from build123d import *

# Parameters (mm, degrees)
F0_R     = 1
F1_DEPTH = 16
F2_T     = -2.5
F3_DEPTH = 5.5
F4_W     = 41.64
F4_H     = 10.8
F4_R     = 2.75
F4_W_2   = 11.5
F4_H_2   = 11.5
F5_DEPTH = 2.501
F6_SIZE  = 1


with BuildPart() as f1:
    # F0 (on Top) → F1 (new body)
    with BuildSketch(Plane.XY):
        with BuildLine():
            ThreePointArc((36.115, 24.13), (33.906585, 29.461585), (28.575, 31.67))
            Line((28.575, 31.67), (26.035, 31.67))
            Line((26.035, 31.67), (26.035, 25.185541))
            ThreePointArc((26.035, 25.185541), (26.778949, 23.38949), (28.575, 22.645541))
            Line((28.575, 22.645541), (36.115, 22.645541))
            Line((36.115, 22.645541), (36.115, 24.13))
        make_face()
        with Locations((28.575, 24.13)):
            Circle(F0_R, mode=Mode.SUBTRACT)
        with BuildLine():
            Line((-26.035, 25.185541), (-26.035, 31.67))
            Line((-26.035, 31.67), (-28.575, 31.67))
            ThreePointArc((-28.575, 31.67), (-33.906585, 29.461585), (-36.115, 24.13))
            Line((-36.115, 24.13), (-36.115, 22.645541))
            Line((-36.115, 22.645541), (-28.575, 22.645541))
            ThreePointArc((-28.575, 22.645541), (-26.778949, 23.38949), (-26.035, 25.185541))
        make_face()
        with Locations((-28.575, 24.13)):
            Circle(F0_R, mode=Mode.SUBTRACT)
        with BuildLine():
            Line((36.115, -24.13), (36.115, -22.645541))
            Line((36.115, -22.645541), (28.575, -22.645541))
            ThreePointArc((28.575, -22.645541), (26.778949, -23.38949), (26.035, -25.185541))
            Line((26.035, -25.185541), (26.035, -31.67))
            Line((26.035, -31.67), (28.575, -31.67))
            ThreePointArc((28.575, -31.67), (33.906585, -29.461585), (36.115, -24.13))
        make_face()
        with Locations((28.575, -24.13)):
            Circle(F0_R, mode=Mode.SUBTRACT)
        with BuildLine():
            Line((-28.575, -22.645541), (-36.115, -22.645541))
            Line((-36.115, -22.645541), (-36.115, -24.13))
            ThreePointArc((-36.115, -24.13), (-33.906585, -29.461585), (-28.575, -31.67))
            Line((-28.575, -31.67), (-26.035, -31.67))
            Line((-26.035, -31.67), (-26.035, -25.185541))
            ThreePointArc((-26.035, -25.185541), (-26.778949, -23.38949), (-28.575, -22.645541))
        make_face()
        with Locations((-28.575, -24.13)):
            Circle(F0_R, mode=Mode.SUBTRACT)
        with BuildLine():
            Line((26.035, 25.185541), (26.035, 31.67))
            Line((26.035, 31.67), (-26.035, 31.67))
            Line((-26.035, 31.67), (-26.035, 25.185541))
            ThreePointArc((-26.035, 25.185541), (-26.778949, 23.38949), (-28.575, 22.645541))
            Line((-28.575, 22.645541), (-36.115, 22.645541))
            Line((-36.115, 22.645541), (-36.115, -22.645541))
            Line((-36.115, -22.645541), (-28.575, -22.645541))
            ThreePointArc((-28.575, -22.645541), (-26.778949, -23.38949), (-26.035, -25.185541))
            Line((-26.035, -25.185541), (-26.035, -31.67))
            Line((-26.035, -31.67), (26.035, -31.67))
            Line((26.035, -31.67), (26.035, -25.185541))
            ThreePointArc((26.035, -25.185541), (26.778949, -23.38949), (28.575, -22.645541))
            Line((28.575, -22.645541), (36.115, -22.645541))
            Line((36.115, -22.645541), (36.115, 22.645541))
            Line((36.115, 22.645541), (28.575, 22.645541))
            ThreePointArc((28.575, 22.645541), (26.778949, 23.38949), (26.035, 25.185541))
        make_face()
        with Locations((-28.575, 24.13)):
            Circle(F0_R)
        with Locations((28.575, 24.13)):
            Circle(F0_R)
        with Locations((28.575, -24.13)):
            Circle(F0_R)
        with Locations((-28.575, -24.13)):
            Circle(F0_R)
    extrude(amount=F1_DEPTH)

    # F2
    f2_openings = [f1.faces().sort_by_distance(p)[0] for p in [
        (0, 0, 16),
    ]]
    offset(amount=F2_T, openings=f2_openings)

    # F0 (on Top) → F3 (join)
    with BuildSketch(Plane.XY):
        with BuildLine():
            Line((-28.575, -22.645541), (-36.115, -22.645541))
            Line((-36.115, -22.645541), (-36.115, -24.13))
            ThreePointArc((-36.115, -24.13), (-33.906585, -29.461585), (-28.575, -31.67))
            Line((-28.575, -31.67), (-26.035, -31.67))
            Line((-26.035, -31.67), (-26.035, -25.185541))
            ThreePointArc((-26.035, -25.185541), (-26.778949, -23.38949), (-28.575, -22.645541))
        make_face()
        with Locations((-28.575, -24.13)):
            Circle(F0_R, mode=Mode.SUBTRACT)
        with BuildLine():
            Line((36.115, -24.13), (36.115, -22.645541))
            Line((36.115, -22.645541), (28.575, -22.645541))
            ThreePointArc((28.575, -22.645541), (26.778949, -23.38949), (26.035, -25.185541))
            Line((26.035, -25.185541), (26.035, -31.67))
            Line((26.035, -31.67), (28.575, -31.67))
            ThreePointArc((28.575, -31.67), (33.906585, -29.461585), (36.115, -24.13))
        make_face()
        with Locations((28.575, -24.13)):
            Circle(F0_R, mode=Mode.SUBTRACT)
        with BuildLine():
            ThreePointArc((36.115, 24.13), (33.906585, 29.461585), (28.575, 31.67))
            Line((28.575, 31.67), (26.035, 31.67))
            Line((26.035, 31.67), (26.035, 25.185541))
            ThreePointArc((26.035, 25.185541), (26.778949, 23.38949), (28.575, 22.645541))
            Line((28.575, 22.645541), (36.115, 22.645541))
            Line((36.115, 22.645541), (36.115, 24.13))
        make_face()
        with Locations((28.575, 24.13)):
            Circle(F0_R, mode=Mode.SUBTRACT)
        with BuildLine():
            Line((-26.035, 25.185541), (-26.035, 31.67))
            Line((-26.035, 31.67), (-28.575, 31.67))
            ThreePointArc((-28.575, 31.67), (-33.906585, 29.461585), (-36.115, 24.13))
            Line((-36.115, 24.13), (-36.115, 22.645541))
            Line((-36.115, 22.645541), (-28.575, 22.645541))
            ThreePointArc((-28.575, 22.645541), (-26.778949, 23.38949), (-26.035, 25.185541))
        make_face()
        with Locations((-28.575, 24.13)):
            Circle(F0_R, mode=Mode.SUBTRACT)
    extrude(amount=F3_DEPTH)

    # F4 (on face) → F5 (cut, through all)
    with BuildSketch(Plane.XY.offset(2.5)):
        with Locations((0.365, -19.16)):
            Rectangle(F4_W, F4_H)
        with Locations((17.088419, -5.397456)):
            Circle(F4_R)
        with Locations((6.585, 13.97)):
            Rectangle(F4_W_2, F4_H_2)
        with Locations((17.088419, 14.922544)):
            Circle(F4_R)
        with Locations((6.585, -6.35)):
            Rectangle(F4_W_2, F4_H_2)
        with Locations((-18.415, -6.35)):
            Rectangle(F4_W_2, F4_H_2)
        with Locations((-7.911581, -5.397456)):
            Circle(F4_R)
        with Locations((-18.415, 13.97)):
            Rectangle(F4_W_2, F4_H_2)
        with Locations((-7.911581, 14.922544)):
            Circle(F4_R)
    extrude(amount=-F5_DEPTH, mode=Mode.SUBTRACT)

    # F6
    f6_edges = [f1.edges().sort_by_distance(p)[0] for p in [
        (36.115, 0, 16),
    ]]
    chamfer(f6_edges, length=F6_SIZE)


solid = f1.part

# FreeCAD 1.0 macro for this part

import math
import FreeCAD as App
import Part
import Sketcher


def edges_at(feature, points):
    """Names of the edges that pass closest to the given points."""
    edges = feature.Shape.Edges
    near = lambda p: min(range(len(edges)), key=lambda i: edges[i].distToShape(Part.Vertex(*p))[0])
    return sorted({f"Edge{near(p) + 1}" for p in points})


def faces_at(feature, points):
    """Names of the faces that lie closest to the given points."""
    faces = feature.Shape.Faces
    near = lambda p: min(range(len(faces)), key=lambda i: faces[i].distToShape(Part.Vertex(*p))[0])
    return sorted({f"Face{near(p) + 1}" for p in points})

doc = App.newDocument("Part")
body = doc.addObject("PartDesign::Body", "Body")

# Sketch on XY plane
sketch1 = doc.addObject("Sketcher::SketchObject", "Sketch")
body.addObject(sketch1)
sketch1.AttachmentSupport = (doc.XY_Plane, [""])
sketch1.MapMode = "FlatFace"
sketch1.addGeometry(Part.ArcOfCircle(Part.Circle(App.Vector(29, 24, 0), App.Vector(0, 0, 1), 8), math.radians(0), math.radians(90)), False)
sketch1.addGeometry(Part.LineSegment(App.Vector(29, 32, 0), App.Vector(-29, 32, 0)), False)
sketch1.addGeometry(Part.ArcOfCircle(Part.Circle(App.Vector(-29, 24, 0), App.Vector(0, 0, 1), 8), math.radians(90), math.radians(180)), False)
sketch1.addGeometry(Part.LineSegment(App.Vector(-36, 24, 0), App.Vector(-36, -24, 0)), False)
sketch1.addGeometry(Part.ArcOfCircle(Part.Circle(App.Vector(-29, -24, 0), App.Vector(0, 0, 1), 8), math.radians(-180), math.radians(-90)), False)
sketch1.addGeometry(Part.LineSegment(App.Vector(-29, -32, 0), App.Vector(29, -32, 0)), False)
sketch1.addGeometry(Part.ArcOfCircle(Part.Circle(App.Vector(29, -24, 0), App.Vector(0, 0, 1), 8), math.radians(-90), math.radians(0)), False)
sketch1.addGeometry(Part.LineSegment(App.Vector(36, -24, 0), App.Vector(36, 24, 0)), False)
sketch1.addConstraint(Sketcher.Constraint("Tangent", 0, 2, 1, 1))
sketch1.addConstraint(Sketcher.Constraint("Tangent", 1, 2, 2, 1))
sketch1.addConstraint(Sketcher.Constraint("Tangent", 2, 2, 3, 1))
sketch1.addConstraint(Sketcher.Constraint("Tangent", 3, 2, 4, 1))
sketch1.addConstraint(Sketcher.Constraint("Tangent", 4, 2, 5, 1))
sketch1.addConstraint(Sketcher.Constraint("Tangent", 5, 2, 6, 1))
sketch1.addConstraint(Sketcher.Constraint("Tangent", 6, 2, 7, 1))
sketch1.addConstraint(Sketcher.Constraint("Tangent", 7, 2, 0, 1))
sketch1.addConstraint(Sketcher.Constraint("Horizontal", 1))
sketch1.addConstraint(Sketcher.Constraint("Vertical", 3))
sketch1.addConstraint(Sketcher.Constraint("Horizontal", 5))
sketch1.addConstraint(Sketcher.Constraint("Vertical", 7))
sketch1.addConstraint(Sketcher.Constraint("Equal", 0, 2))
sketch1.addConstraint(Sketcher.Constraint("Equal", 2, 4))
sketch1.addConstraint(Sketcher.Constraint("Equal", 4, 6))
sketch1.addConstraint(Sketcher.Constraint("Symmetric", 0, 3, 4, 3, -1, 1))
sketch1.addConstraint(Sketcher.Constraint("Radius", 0, 7.54))
sketch1.addConstraint(Sketcher.Constraint("DistanceX", 1, 2, 1, 1, 57.15))
sketch1.addConstraint(Sketcher.Constraint("DistanceY", 3, 2, 3, 1, 48.26))
pad1 = doc.addObject("PartDesign::Pad", "Pad")
body.addObject(pad1)
pad1.Profile = sketch1
pad1.Length = 16
doc.recompute()

thickness = doc.addObject("PartDesign::Thickness", "Thickness")
body.addObject(thickness)
thickness.Base = (pad1, faces_at(pad1, [(0, 0, 16)]))
thickness.Value = 2.5
thickness.Reversed = True
thickness.Join = "Arc"

# Sketch on XY plane
sketch2 = doc.addObject("Sketcher::SketchObject", "Sketch001")
body.addObject(sketch2)
sketch2.AttachmentSupport = (doc.XY_Plane, [""])
sketch2.MapMode = "FlatFace"
sketch2.addGeometry(Part.LineSegment(App.Vector(-28.6, -22.6, 0), App.Vector(-36.1, -22.6, 0)), False)
sketch2.addGeometry(Part.LineSegment(App.Vector(-36.1, -22.6, 0), App.Vector(-36.1, -24.1, 0)), False)
sketch2.addGeometry(Part.ArcOfCircle(Part.Circle(App.Vector(-28.6, -24.1, 0), App.Vector(0, 0, 1), 7.5), math.radians(-180), math.radians(-90)), False)
sketch2.addGeometry(Part.LineSegment(App.Vector(-28.6, -31.7, 0), App.Vector(-26, -31.7, 0)), False)
sketch2.addGeometry(Part.LineSegment(App.Vector(-26, -31.7, 0), App.Vector(-26, -25.2, 0)), False)
sketch2.addGeometry(Part.ArcOfCircle(Part.Circle(App.Vector(-28.6, -25.2, 0), App.Vector(0, 0, 1), 2.5), math.radians(0), math.radians(90)), False)
sketch2.addGeometry(Part.Circle(App.Vector(-28.6, -24.1, 0), App.Vector(0, 0, 1), 1), False)
sketch2.addGeometry(Part.LineSegment(App.Vector(36.1, -24.1, 0), App.Vector(36.1, -22.6, 0)), False)
sketch2.addGeometry(Part.LineSegment(App.Vector(36.1, -22.6, 0), App.Vector(28.6, -22.6, 0)), False)
sketch2.addGeometry(Part.ArcOfCircle(Part.Circle(App.Vector(28.6, -25.2, 0), App.Vector(0, 0, 1), 2.5), math.radians(90), math.radians(180)), False)
sketch2.addGeometry(Part.LineSegment(App.Vector(26, -25.2, 0), App.Vector(26, -31.7, 0)), False)
sketch2.addGeometry(Part.LineSegment(App.Vector(26, -31.7, 0), App.Vector(28.6, -31.7, 0)), False)
sketch2.addGeometry(Part.ArcOfCircle(Part.Circle(App.Vector(28.6, -24.1, 0), App.Vector(0, 0, 1), 7.5), math.radians(-90), math.radians(0)), False)
sketch2.addGeometry(Part.Circle(App.Vector(28.6, -24.1, 0), App.Vector(0, 0, 1), 1), False)
sketch2.addGeometry(Part.ArcOfCircle(Part.Circle(App.Vector(28.6, 24.1, 0), App.Vector(0, 0, 1), 7.5), math.radians(0), math.radians(90)), False)
sketch2.addGeometry(Part.LineSegment(App.Vector(28.6, 31.7, 0), App.Vector(26, 31.7, 0)), False)
sketch2.addGeometry(Part.LineSegment(App.Vector(26, 31.7, 0), App.Vector(26, 25.2, 0)), False)
sketch2.addGeometry(Part.ArcOfCircle(Part.Circle(App.Vector(28.6, 25.2, 0), App.Vector(0, 0, 1), 2.5), math.radians(-180), math.radians(-90)), False)
sketch2.addGeometry(Part.LineSegment(App.Vector(28.6, 22.6, 0), App.Vector(36.1, 22.6, 0)), False)
sketch2.addGeometry(Part.LineSegment(App.Vector(36.1, 22.6, 0), App.Vector(36.1, 24.1, 0)), False)
sketch2.addGeometry(Part.Circle(App.Vector(28.6, 24.1, 0), App.Vector(0, 0, 1), 1), False)
sketch2.addGeometry(Part.LineSegment(App.Vector(-26, 25.2, 0), App.Vector(-26, 31.7, 0)), False)
sketch2.addGeometry(Part.LineSegment(App.Vector(-26, 31.7, 0), App.Vector(-28.6, 31.7, 0)), False)
sketch2.addGeometry(Part.ArcOfCircle(Part.Circle(App.Vector(-28.6, 24.1, 0), App.Vector(0, 0, 1), 7.5), math.radians(90), math.radians(180)), False)
sketch2.addGeometry(Part.LineSegment(App.Vector(-36.1, 24.1, 0), App.Vector(-36.1, 22.6, 0)), False)
sketch2.addGeometry(Part.LineSegment(App.Vector(-36.1, 22.6, 0), App.Vector(-28.6, 22.6, 0)), False)
sketch2.addGeometry(Part.ArcOfCircle(Part.Circle(App.Vector(-28.6, 25.2, 0), App.Vector(0, 0, 1), 2.5), math.radians(-90), math.radians(0)), False)
sketch2.addGeometry(Part.Circle(App.Vector(-28.6, 24.1, 0), App.Vector(0, 0, 1), 1), False)
sketch2.addConstraint(Sketcher.Constraint("Coincident", 0, 2, 1, 1))
sketch2.addConstraint(Sketcher.Constraint("Tangent", 1, 2, 2, 1))
sketch2.addConstraint(Sketcher.Constraint("Tangent", 2, 2, 3, 1))
sketch2.addConstraint(Sketcher.Constraint("Coincident", 3, 2, 4, 1))
sketch2.addConstraint(Sketcher.Constraint("Tangent", 4, 2, 5, 1))
sketch2.addConstraint(Sketcher.Constraint("Tangent", 5, 2, 0, 1))
sketch2.addConstraint(Sketcher.Constraint("Coincident", 7, 2, 8, 1))
sketch2.addConstraint(Sketcher.Constraint("Tangent", 8, 2, 9, 1))
sketch2.addConstraint(Sketcher.Constraint("Tangent", 9, 2, 10, 1))
sketch2.addConstraint(Sketcher.Constraint("Coincident", 10, 2, 11, 1))
sketch2.addConstraint(Sketcher.Constraint("Tangent", 11, 2, 12, 1))
sketch2.addConstraint(Sketcher.Constraint("Tangent", 12, 2, 7, 1))
sketch2.addConstraint(Sketcher.Constraint("Tangent", 14, 2, 15, 1))
sketch2.addConstraint(Sketcher.Constraint("Coincident", 15, 2, 16, 1))
sketch2.addConstraint(Sketcher.Constraint("Tangent", 16, 2, 17, 1))
sketch2.addConstraint(Sketcher.Constraint("Tangent", 17, 2, 18, 1))
sketch2.addConstraint(Sketcher.Constraint("Coincident", 18, 2, 19, 1))
sketch2.addConstraint(Sketcher.Constraint("Tangent", 19, 2, 14, 1))
sketch2.addConstraint(Sketcher.Constraint("Coincident", 21, 2, 22, 1))
sketch2.addConstraint(Sketcher.Constraint("Tangent", 22, 2, 23, 1))
sketch2.addConstraint(Sketcher.Constraint("Tangent", 23, 2, 24, 1))
sketch2.addConstraint(Sketcher.Constraint("Coincident", 24, 2, 25, 1))
sketch2.addConstraint(Sketcher.Constraint("Tangent", 25, 2, 26, 1))
sketch2.addConstraint(Sketcher.Constraint("Tangent", 26, 2, 21, 1))
sketch2.addConstraint(Sketcher.Constraint("Horizontal", 0))
sketch2.addConstraint(Sketcher.Constraint("Vertical", 1))
sketch2.addConstraint(Sketcher.Constraint("Horizontal", 3))
sketch2.addConstraint(Sketcher.Constraint("Vertical", 4))
sketch2.addConstraint(Sketcher.Constraint("Vertical", 7))
sketch2.addConstraint(Sketcher.Constraint("Horizontal", 8))
sketch2.addConstraint(Sketcher.Constraint("Vertical", 10))
sketch2.addConstraint(Sketcher.Constraint("Horizontal", 11))
sketch2.addConstraint(Sketcher.Constraint("Horizontal", 15))
sketch2.addConstraint(Sketcher.Constraint("Vertical", 16))
sketch2.addConstraint(Sketcher.Constraint("Horizontal", 18))
sketch2.addConstraint(Sketcher.Constraint("Vertical", 19))
sketch2.addConstraint(Sketcher.Constraint("Vertical", 21))
sketch2.addConstraint(Sketcher.Constraint("Horizontal", 22))
sketch2.addConstraint(Sketcher.Constraint("Vertical", 24))
sketch2.addConstraint(Sketcher.Constraint("Horizontal", 25))
sketch2.addConstraint(Sketcher.Constraint("Coincident", 6, 3, 2, 3))
sketch2.addConstraint(Sketcher.Constraint("Coincident", 13, 3, 12, 3))
sketch2.addConstraint(Sketcher.Constraint("Coincident", 20, 3, 14, 3))
sketch2.addConstraint(Sketcher.Constraint("Coincident", 27, 3, 23, 3))
sketch2.addConstraint(Sketcher.Constraint("Equal", 5, 9))
sketch2.addConstraint(Sketcher.Constraint("Equal", 2, 12))
sketch2.addConstraint(Sketcher.Constraint("Equal", 6, 13))
sketch2.addConstraint(Sketcher.Constraint("Equal", 12, 14))
sketch2.addConstraint(Sketcher.Constraint("Equal", 9, 17))
sketch2.addConstraint(Sketcher.Constraint("Equal", 13, 20))
sketch2.addConstraint(Sketcher.Constraint("Equal", 14, 23))
sketch2.addConstraint(Sketcher.Constraint("Equal", 17, 26))
sketch2.addConstraint(Sketcher.Constraint("Equal", 20, 27))
sketch2.addConstraint(Sketcher.Constraint("Symmetric", 2, 3, 14, 3, -1, 1))
sketch2.addConstraint(Sketcher.Constraint("Symmetric", 5, 3, 17, 3, -1, 1))
sketch2.addConstraint(Sketcher.Constraint("Symmetric", 12, 3, 23, 3, -1, 1))
sketch2.addConstraint(Sketcher.Constraint("Symmetric", 9, 3, 26, 3, -1, 1))
sketch2.addConstraint(Sketcher.Constraint("Symmetric", 5, 3, 9, 3, -2))
sketch2.addConstraint(Sketcher.Constraint("Symmetric", 2, 3, 12, 3, -2))
sketch2.addConstraint(Sketcher.Constraint("Vertical", 2, 3, 5, 3))
sketch2.addConstraint(Sketcher.Constraint("Diameter", 6, 2.0))
sketch2.addConstraint(Sketcher.Constraint("Radius", 2, 7.54))
sketch2.addConstraint(Sketcher.Constraint("Radius", 5, 2.540001))
sketch2.addConstraint(Sketcher.Constraint("DistanceY", 2, 3, -1, 1, 24.13))
sketch2.addConstraint(Sketcher.Constraint("DistanceX", 5, 3, 9, 3, 57.150002))
sketch2.addConstraint(Sketcher.Constraint("DistanceY", 1, 2, 1, 1, 1.484459))
pad2 = doc.addObject("PartDesign::Pad", "Pad001")
body.addObject(pad2)
pad2.Profile = sketch2
pad2.Length = 5.5

# Sketch on XY plane
sketch3 = doc.addObject("Sketcher::SketchObject", "Sketch002")
body.addObject(sketch3)
sketch3.AttachmentSupport = (doc.XY_Plane, [""])
sketch3.MapMode = "FlatFace"
sketch3.AttachmentOffset = App.Placement(App.Vector(0, 0, 2.5), App.Rotation())
sketch3.addGeometry(Part.LineSegment(App.Vector(-20.5, -13.8, 0), App.Vector(-20.5, -24.6, 0)), False)
sketch3.addGeometry(Part.LineSegment(App.Vector(-20.5, -24.6, 0), App.Vector(21.2, -24.6, 0)), False)
sketch3.addGeometry(Part.LineSegment(App.Vector(21.2, -24.6, 0), App.Vector(21.2, -13.8, 0)), False)
sketch3.addGeometry(Part.LineSegment(App.Vector(21.2, -13.8, 0), App.Vector(-20.5, -13.8, 0)), False)
sketch3.addGeometry(Part.Circle(App.Vector(17.1, -5.4, 0), App.Vector(0, 0, 1), 2.8), False)
sketch3.addGeometry(Part.LineSegment(App.Vector(0.8, 19.7, 0), App.Vector(0.8, 8.2, 0)), False)
sketch3.addGeometry(Part.LineSegment(App.Vector(0.8, 8.2, 0), App.Vector(12.3, 8.2, 0)), False)
sketch3.addGeometry(Part.LineSegment(App.Vector(12.3, 8.2, 0), App.Vector(12.3, 19.7, 0)), False)
sketch3.addGeometry(Part.LineSegment(App.Vector(12.3, 19.7, 0), App.Vector(0.8, 19.7, 0)), False)
sketch3.addGeometry(Part.Circle(App.Vector(17.1, 14.9, 0), App.Vector(0, 0, 1), 2.8), False)
sketch3.addGeometry(Part.LineSegment(App.Vector(0.8, -0.6, 0), App.Vector(0.8, -12.1, 0)), False)
sketch3.addGeometry(Part.LineSegment(App.Vector(0.8, -12.1, 0), App.Vector(12.3, -12.1, 0)), False)
sketch3.addGeometry(Part.LineSegment(App.Vector(12.3, -12.1, 0), App.Vector(12.3, -0.6, 0)), False)
sketch3.addGeometry(Part.LineSegment(App.Vector(12.3, -0.6, 0), App.Vector(0.8, -0.6, 0)), False)
sketch3.addGeometry(Part.LineSegment(App.Vector(-24.2, -0.6, 0), App.Vector(-24.2, -12.1, 0)), False)
sketch3.addGeometry(Part.LineSegment(App.Vector(-24.2, -12.1, 0), App.Vector(-12.7, -12.1, 0)), False)
sketch3.addGeometry(Part.LineSegment(App.Vector(-12.7, -12.1, 0), App.Vector(-12.7, -0.6, 0)), False)
sketch3.addGeometry(Part.LineSegment(App.Vector(-12.7, -0.6, 0), App.Vector(-24.2, -0.6, 0)), False)
sketch3.addGeometry(Part.Circle(App.Vector(-7.9, -5.4, 0), App.Vector(0, 0, 1), 2.8), False)
sketch3.addGeometry(Part.LineSegment(App.Vector(-24.2, 19.7, 0), App.Vector(-24.2, 8.2, 0)), False)
sketch3.addGeometry(Part.LineSegment(App.Vector(-24.2, 8.2, 0), App.Vector(-12.7, 8.2, 0)), False)
sketch3.addGeometry(Part.LineSegment(App.Vector(-12.7, 8.2, 0), App.Vector(-12.7, 19.7, 0)), False)
sketch3.addGeometry(Part.LineSegment(App.Vector(-12.7, 19.7, 0), App.Vector(-24.2, 19.7, 0)), False)
sketch3.addGeometry(Part.Circle(App.Vector(-7.9, 14.9, 0), App.Vector(0, 0, 1), 2.8), False)
sketch3.addConstraint(Sketcher.Constraint("Coincident", 0, 2, 1, 1))
sketch3.addConstraint(Sketcher.Constraint("Coincident", 1, 2, 2, 1))
sketch3.addConstraint(Sketcher.Constraint("Coincident", 2, 2, 3, 1))
sketch3.addConstraint(Sketcher.Constraint("Coincident", 3, 2, 0, 1))
sketch3.addConstraint(Sketcher.Constraint("Coincident", 5, 2, 6, 1))
sketch3.addConstraint(Sketcher.Constraint("Coincident", 6, 2, 7, 1))
sketch3.addConstraint(Sketcher.Constraint("Coincident", 7, 2, 8, 1))
sketch3.addConstraint(Sketcher.Constraint("Coincident", 8, 2, 5, 1))
sketch3.addConstraint(Sketcher.Constraint("Coincident", 10, 2, 11, 1))
sketch3.addConstraint(Sketcher.Constraint("Coincident", 11, 2, 12, 1))
sketch3.addConstraint(Sketcher.Constraint("Coincident", 12, 2, 13, 1))
sketch3.addConstraint(Sketcher.Constraint("Coincident", 13, 2, 10, 1))
sketch3.addConstraint(Sketcher.Constraint("Coincident", 14, 2, 15, 1))
sketch3.addConstraint(Sketcher.Constraint("Coincident", 15, 2, 16, 1))
sketch3.addConstraint(Sketcher.Constraint("Coincident", 16, 2, 17, 1))
sketch3.addConstraint(Sketcher.Constraint("Coincident", 17, 2, 14, 1))
sketch3.addConstraint(Sketcher.Constraint("Coincident", 19, 2, 20, 1))
sketch3.addConstraint(Sketcher.Constraint("Coincident", 20, 2, 21, 1))
sketch3.addConstraint(Sketcher.Constraint("Coincident", 21, 2, 22, 1))
sketch3.addConstraint(Sketcher.Constraint("Coincident", 22, 2, 19, 1))
sketch3.addConstraint(Sketcher.Constraint("Vertical", 0))
sketch3.addConstraint(Sketcher.Constraint("Horizontal", 1))
sketch3.addConstraint(Sketcher.Constraint("Vertical", 2))
sketch3.addConstraint(Sketcher.Constraint("Horizontal", 3))
sketch3.addConstraint(Sketcher.Constraint("Vertical", 5))
sketch3.addConstraint(Sketcher.Constraint("Horizontal", 6))
sketch3.addConstraint(Sketcher.Constraint("Vertical", 7))
sketch3.addConstraint(Sketcher.Constraint("Horizontal", 8))
sketch3.addConstraint(Sketcher.Constraint("Vertical", 10))
sketch3.addConstraint(Sketcher.Constraint("Horizontal", 11))
sketch3.addConstraint(Sketcher.Constraint("Vertical", 12))
sketch3.addConstraint(Sketcher.Constraint("Horizontal", 13))
sketch3.addConstraint(Sketcher.Constraint("Vertical", 14))
sketch3.addConstraint(Sketcher.Constraint("Horizontal", 15))
sketch3.addConstraint(Sketcher.Constraint("Vertical", 16))
sketch3.addConstraint(Sketcher.Constraint("Horizontal", 17))
sketch3.addConstraint(Sketcher.Constraint("Vertical", 19))
sketch3.addConstraint(Sketcher.Constraint("Horizontal", 20))
sketch3.addConstraint(Sketcher.Constraint("Vertical", 21))
sketch3.addConstraint(Sketcher.Constraint("Horizontal", 22))
sketch3.addConstraint(Sketcher.Constraint("Equal", 4, 9))
sketch3.addConstraint(Sketcher.Constraint("Equal", 9, 18))
sketch3.addConstraint(Sketcher.Constraint("Equal", 18, 23))
sketch3.addConstraint(Sketcher.Constraint("Horizontal", 4, 3, 18, 3))
sketch3.addConstraint(Sketcher.Constraint("Horizontal", 9, 3, 23, 3))
sketch3.addConstraint(Sketcher.Constraint("Horizontal", 11, 2, 14, 2))
sketch3.addConstraint(Sketcher.Constraint("Horizontal", 13, 2, 16, 2))
sketch3.addConstraint(Sketcher.Constraint("Horizontal", 6, 2, 19, 2))
sketch3.addConstraint(Sketcher.Constraint("Horizontal", 8, 2, 21, 2))
sketch3.addConstraint(Sketcher.Constraint("Vertical", 4, 3, 9, 3))
sketch3.addConstraint(Sketcher.Constraint("Vertical", 18, 3, 23, 3))
sketch3.addConstraint(Sketcher.Constraint("Vertical", 8, 2, 10, 2))
sketch3.addConstraint(Sketcher.Constraint("Vertical", 7, 2, 11, 2))
sketch3.addConstraint(Sketcher.Constraint("Vertical", 17, 2, 19, 2))
sketch3.addConstraint(Sketcher.Constraint("Vertical", 16, 2, 20, 2))
sketch3.addConstraint(Sketcher.Constraint("Equal", 13, 15))
sketch3.addConstraint(Sketcher.Constraint("Equal", 22, 5))
sketch3.addConstraint(Sketcher.Constraint("Equal", 7, 10))
sketch3.addConstraint(Sketcher.Constraint("Diameter", 4, 5.5))
sketch3.addConstraint(Sketcher.Constraint("DistanceX", 6, 1, 6, 2, 11.5))
sketch3.addConstraint(Sketcher.Constraint("DistanceY", 0, 2, 0, 1, 10.8))
sketch3.addConstraint(Sketcher.Constraint("DistanceX", 18, 3, 4, 3, 25.0))
sketch3.addConstraint(Sketcher.Constraint("DistanceX", 14, 2, 10, 2, 25.0))
sketch3.addConstraint(Sketcher.Constraint("DistanceX", 1, 1, 1, 2, 41.64))
sketch3.addConstraint(Sketcher.Constraint("DistanceY", 10, 2, -1, 1, 12.1))
sketch3.addConstraint(Sketcher.Constraint("DistanceY", 0, 2, -1, 1, 24.56))
sketch3.addConstraint(Sketcher.Constraint("DistanceY", -1, 1, 5, 2, 8.22))
sketch3.addConstraint(Sketcher.Constraint("DistanceY", 4, 3, 9, 3, 20.32))
sketch3.addConstraint(Sketcher.Constraint("DistanceX", 5, 2, 2, 2, 20.35))
sketch3.addConstraint(Sketcher.Constraint("DistanceX", 0, 2, -1, 1, 20.455))
sketch3.addConstraint(Sketcher.Constraint("DistanceX", -1, 1, 4, 3, 17.088419))
sketch3.addConstraint(Sketcher.Constraint("DistanceY", 4, 3, -1, 1, 5.397456))
pocket1 = doc.addObject("PartDesign::Pocket", "Pocket")
body.addObject(pocket1)
pocket1.Profile = sketch3
pocket1.Type = "ThroughAll"
doc.recompute()

chamfer = doc.addObject("PartDesign::Chamfer", "Chamfer")
body.addObject(chamfer)
chamfer.Base = (pocket1, edges_at(pocket1, [(36.115, 0, 16)]))
chamfer.Size = 1

doc.recompute()
